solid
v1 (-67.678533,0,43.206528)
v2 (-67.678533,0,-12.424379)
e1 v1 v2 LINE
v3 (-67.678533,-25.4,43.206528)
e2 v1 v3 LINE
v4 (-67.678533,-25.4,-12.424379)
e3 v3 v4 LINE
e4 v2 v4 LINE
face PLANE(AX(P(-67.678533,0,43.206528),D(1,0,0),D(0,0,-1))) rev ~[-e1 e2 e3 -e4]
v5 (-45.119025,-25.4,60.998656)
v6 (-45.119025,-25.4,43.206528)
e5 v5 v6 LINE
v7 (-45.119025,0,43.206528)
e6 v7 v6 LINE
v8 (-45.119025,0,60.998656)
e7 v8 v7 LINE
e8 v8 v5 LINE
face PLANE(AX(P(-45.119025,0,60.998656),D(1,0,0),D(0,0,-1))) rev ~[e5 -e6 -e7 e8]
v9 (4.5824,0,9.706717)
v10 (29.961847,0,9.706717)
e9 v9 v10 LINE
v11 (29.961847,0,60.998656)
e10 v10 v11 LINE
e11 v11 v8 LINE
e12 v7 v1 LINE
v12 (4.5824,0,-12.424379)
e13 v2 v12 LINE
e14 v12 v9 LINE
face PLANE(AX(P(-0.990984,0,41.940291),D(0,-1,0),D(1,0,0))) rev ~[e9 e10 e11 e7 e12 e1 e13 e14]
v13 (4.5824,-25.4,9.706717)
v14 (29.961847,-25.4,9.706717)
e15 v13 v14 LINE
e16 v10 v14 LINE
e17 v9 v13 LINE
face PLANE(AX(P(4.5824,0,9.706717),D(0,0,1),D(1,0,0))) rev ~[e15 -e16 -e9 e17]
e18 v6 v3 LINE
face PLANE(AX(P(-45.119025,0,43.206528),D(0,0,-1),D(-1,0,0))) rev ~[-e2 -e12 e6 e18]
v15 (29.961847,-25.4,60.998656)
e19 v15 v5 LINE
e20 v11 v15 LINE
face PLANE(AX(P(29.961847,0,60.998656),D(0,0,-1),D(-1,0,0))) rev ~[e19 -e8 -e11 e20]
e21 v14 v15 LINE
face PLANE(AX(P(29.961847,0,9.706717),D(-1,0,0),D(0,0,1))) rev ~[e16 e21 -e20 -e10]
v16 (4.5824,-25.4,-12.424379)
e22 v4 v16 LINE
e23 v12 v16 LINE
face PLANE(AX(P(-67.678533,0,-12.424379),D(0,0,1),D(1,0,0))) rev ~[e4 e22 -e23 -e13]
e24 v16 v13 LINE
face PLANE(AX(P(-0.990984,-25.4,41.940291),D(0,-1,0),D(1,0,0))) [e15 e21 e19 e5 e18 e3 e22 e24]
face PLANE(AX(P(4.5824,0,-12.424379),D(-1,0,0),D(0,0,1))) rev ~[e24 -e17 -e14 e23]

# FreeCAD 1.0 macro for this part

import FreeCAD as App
import Part
import Sketcher

V = App.Vector
Q = App.Units.Quantity

doc = App.newDocument("Part")
body = doc.addObject("PartDesign::Body", "Body")

# Sketch on XZ plane
sketch1 = body.newObject("Sketcher::SketchObject", "Sketch")
sketch1.AttachmentSupport = (doc.getObject("XZ_Plane"), [""])
sketch1.MapMode = "FlatFace"
sketch1.addGeometry([
    Part.LineSegment(V(-45, 61, 0), V(-45, 43, 0)),  # 0
    Part.LineSegment(V(-45, 43, 0), V(-68, 43, 0)),  # 1
    Part.LineSegment(V(-68, 43, 0), V(-68, -12, 0)),  # 2
    Part.LineSegment(V(-68, -12, 0), V(5, -12, 0)),  # 3
    Part.LineSegment(V(5, -12, 0), V(5, 10, 0)),  # 4
    Part.LineSegment(V(5, 10, 0), V(30, 10, 0)),  # 5
    Part.LineSegment(V(30, 10, 0), V(30, 61, 0)),  # 6
    Part.LineSegment(V(30, 61, 0), V(-45, 61, 0)),  # 7
], False)
sketch1.addConstraint([
    Sketcher.Constraint("Coincident", 0, 2, 1, 1),
    Sketcher.Constraint("Coincident", 1, 2, 2, 1),
    Sketcher.Constraint("Coincident", 2, 2, 3, 1),
    Sketcher.Constraint("Coincident", 3, 2, 4, 1),
    Sketcher.Constraint("Coincident", 4, 2, 5, 1),
    Sketcher.Constraint("Coincident", 5, 2, 6, 1),
    Sketcher.Constraint("Coincident", 6, 2, 7, 1),
    Sketcher.Constraint("Coincident", 7, 2, 0, 1),
    Sketcher.Constraint("Vertical", 0),
    Sketcher.Constraint("Horizontal", 1),
    Sketcher.Constraint("Vertical", 2),
    Sketcher.Constraint("Horizontal", 3),
    Sketcher.Constraint("Vertical", 4),
    Sketcher.Constraint("Horizontal", 5),
    Sketcher.Constraint("Vertical", 6),
    Sketcher.Constraint("Horizontal", 7),
    Sketcher.Constraint("DistanceX", 1, 2, 1, 1, 22.559509),
    Sketcher.Constraint("DistanceX", 7, 2, 7, 1, 75.080872),
    Sketcher.Constraint("DistanceY", 0, 2, 0, 1, 17.792128),
    Sketcher.Constraint("DistanceY", 6, 1, 6, 2, 51.291939),
    Sketcher.Constraint("DistanceX", -1, 1, 3, 2, 4.5824),
    Sketcher.Constraint("DistanceX", 3, 1, 3, 2, 72.260933),
    Sketcher.Constraint("DistanceY", 2, 2, 2, 1, 55.630906),
    Sketcher.Constraint("DistanceY", 2, 2, -1, 1, 12.424379),
])
pad1 = body.newObject("PartDesign::Pad", "Pad")
pad1.Profile = sketch1
pad1.Length = Q("1 in")

doc.recompute()
